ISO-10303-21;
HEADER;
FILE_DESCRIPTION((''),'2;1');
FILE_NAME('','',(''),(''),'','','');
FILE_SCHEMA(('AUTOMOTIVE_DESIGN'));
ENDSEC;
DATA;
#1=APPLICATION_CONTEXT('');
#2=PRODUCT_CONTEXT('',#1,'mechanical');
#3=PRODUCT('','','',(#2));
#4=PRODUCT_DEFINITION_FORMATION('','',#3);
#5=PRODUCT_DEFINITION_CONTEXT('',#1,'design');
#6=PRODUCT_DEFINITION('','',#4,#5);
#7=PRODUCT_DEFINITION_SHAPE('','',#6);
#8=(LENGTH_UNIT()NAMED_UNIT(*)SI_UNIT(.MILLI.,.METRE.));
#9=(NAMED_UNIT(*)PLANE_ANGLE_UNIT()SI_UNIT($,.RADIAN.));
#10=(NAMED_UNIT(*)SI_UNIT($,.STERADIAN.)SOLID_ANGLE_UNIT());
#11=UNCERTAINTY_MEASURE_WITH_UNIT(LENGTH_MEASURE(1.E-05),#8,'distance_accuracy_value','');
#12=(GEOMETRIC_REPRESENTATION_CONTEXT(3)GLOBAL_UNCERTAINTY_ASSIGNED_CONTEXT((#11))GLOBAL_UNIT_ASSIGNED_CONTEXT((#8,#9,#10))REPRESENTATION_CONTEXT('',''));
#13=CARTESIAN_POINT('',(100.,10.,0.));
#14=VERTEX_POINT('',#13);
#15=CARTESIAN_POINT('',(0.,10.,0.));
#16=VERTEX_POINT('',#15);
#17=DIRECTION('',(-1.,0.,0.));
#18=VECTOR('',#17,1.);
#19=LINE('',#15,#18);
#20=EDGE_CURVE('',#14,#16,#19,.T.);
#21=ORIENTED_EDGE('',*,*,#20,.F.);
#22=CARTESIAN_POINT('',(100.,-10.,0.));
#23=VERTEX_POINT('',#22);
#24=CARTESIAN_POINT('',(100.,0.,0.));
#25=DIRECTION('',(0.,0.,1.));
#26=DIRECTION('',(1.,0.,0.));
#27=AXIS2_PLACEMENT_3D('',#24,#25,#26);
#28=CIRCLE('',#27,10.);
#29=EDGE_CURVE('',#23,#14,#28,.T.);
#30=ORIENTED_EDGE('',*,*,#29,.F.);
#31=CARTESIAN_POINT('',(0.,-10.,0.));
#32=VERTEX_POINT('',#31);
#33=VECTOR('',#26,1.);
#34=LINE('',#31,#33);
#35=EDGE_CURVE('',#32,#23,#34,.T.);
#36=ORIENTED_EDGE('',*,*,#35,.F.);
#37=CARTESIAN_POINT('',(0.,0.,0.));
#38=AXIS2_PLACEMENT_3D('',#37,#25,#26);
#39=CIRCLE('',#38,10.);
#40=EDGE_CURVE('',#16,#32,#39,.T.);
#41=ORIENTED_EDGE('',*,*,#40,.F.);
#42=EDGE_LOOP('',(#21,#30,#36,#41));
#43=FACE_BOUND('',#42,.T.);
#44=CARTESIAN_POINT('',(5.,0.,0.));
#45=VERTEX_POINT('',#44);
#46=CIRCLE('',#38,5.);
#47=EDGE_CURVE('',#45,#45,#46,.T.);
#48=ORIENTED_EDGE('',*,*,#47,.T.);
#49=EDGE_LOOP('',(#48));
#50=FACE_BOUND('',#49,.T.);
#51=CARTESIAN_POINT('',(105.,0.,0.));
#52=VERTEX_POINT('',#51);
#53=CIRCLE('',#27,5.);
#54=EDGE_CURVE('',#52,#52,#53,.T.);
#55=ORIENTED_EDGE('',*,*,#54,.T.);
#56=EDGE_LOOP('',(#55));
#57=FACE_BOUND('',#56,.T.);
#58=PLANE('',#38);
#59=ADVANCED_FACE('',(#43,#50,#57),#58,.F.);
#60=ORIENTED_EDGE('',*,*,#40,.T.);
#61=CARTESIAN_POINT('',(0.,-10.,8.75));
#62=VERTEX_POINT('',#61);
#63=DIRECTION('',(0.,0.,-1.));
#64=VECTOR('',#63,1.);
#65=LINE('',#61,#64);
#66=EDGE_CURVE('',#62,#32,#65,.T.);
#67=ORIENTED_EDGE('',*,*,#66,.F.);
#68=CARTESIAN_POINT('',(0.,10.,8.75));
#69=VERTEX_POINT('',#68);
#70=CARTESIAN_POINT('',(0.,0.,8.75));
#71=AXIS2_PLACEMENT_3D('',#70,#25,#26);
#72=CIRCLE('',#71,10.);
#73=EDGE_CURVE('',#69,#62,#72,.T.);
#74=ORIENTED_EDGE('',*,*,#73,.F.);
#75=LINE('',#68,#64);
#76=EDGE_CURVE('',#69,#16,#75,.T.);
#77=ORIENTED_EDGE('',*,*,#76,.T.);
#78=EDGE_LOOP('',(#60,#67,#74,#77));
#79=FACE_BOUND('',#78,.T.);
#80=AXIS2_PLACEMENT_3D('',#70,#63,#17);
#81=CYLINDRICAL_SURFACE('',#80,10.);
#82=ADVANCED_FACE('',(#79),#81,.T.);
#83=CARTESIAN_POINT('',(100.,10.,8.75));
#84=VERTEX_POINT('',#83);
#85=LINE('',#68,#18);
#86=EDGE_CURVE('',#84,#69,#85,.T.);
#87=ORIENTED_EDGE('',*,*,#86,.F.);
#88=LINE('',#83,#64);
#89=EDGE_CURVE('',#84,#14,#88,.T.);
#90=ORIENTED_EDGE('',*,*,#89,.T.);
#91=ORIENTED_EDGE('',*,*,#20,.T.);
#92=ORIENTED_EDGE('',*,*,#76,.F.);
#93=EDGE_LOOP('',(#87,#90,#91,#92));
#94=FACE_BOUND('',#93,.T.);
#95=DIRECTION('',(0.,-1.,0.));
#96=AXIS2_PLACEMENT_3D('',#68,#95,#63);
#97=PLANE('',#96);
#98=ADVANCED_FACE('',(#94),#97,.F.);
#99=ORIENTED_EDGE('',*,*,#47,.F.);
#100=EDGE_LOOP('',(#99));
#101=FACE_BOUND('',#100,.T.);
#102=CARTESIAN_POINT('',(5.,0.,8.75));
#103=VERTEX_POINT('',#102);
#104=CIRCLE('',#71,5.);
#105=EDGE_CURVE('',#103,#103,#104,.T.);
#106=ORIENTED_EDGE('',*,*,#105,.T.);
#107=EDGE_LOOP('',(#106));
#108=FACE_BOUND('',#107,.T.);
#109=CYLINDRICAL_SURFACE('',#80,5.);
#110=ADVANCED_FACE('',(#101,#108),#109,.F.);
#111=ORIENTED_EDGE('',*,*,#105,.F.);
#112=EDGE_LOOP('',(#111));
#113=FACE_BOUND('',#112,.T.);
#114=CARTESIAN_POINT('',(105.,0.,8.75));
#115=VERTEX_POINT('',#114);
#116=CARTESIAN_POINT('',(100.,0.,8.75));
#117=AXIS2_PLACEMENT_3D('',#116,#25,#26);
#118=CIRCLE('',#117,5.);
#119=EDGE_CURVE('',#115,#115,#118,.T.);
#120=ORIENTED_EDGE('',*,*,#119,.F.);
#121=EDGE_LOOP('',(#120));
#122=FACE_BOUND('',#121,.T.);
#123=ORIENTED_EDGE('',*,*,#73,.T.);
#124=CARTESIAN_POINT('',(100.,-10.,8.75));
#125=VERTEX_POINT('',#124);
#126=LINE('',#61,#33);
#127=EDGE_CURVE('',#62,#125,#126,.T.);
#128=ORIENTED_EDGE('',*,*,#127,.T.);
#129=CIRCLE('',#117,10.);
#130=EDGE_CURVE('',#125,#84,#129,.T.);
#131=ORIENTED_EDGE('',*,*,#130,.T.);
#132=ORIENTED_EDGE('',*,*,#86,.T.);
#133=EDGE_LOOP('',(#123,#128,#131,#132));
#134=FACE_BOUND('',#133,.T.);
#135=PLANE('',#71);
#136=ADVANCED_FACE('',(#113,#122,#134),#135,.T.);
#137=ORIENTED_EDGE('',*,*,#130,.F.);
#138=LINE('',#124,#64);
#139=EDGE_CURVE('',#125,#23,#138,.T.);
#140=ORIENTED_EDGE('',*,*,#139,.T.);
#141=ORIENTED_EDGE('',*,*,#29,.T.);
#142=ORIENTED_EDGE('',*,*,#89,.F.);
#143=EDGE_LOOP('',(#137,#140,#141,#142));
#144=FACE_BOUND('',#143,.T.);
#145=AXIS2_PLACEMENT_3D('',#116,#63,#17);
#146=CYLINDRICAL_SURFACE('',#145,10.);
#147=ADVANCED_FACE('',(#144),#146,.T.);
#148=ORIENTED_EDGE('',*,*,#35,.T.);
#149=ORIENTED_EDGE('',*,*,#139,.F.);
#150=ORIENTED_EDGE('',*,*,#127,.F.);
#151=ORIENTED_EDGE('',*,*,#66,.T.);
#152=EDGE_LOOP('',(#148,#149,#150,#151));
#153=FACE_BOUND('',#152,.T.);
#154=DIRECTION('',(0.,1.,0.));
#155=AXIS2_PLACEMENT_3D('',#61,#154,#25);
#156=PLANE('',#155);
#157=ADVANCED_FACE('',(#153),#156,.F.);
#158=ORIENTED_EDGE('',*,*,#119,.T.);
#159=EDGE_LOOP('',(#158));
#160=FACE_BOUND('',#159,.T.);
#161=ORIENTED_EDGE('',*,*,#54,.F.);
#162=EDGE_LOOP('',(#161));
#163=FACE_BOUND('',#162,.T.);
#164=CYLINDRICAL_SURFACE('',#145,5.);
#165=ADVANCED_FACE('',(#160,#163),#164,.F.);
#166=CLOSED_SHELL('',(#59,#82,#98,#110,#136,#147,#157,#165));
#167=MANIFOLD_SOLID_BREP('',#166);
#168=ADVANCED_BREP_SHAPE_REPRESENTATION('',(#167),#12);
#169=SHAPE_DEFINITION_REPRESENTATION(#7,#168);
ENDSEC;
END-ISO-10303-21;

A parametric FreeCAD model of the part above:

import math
import FreeCAD as App
import Part
import Sketcher

doc = App.newDocument("Part")
body = doc.addObject("PartDesign::Body", "Body")

sketch1 = doc.addObject("Sketcher::SketchObject", "Sketch")
body.addObject(sketch1)
sketch1.AttachmentSupport = (doc.XY_Plane, [""])
sketch1.MapMode = "FlatFace"
sketch1.addGeometry([
    Part.LineSegment(App.Vector(100, 10, 0), App.Vector(0, 10, 0)),
    Part.ArcOfCircle(Part.Circle(App.Vector(0, 0, 0), App.Vector(0, 0, 1), 10), math.radians(90), math.radians(270)),
    Part.LineSegment(App.Vector(0, -10, 0), App.Vector(100, -10, 0)),
    Part.ArcOfCircle(Part.Circle(App.Vector(100, 0, 0), App.Vector(0, 0, 1), 10), math.radians(-90), math.radians(90)),
    Part.Circle(App.Vector(100, 0, 0), App.Vector(0, 0, 1), 5),
    Part.Circle(App.Vector(0, 0, 0), App.Vector(0, 0, 1), 5),
], False)
sketch1.addConstraint([
    Sketcher.Constraint("Tangent", 0, 2, 1, 1),
    Sketcher.Constraint("Tangent", 1, 2, 2, 1),
    Sketcher.Constraint("Tangent", 2, 2, 3, 1),
    Sketcher.Constraint("Tangent", 3, 2, 0, 1),
    Sketcher.Constraint("Horizontal", 0),
    Sketcher.Constraint("Horizontal", 2),
    Sketcher.Constraint("Coincident", 1, 3, -1, 1),
    Sketcher.Constraint("Coincident", 5, 3, -1, 1),
    Sketcher.Constraint("Coincident", 4, 3, 3, 3),
    Sketcher.Constraint("Equal", 4, 5),
    Sketcher.Constraint("Diameter", 4, 10.0),
    Sketcher.Constraint("Radius", 1, 10.0),
    Sketcher.Constraint("DistanceX", 0, 2, 0, 1, 100.0),
])
pad1 = doc.addObject("PartDesign::Pad", "Pad")
body.addObject(pad1)
pad1.Profile = sketch1
pad1.Length = 8.75

doc.recompute()
